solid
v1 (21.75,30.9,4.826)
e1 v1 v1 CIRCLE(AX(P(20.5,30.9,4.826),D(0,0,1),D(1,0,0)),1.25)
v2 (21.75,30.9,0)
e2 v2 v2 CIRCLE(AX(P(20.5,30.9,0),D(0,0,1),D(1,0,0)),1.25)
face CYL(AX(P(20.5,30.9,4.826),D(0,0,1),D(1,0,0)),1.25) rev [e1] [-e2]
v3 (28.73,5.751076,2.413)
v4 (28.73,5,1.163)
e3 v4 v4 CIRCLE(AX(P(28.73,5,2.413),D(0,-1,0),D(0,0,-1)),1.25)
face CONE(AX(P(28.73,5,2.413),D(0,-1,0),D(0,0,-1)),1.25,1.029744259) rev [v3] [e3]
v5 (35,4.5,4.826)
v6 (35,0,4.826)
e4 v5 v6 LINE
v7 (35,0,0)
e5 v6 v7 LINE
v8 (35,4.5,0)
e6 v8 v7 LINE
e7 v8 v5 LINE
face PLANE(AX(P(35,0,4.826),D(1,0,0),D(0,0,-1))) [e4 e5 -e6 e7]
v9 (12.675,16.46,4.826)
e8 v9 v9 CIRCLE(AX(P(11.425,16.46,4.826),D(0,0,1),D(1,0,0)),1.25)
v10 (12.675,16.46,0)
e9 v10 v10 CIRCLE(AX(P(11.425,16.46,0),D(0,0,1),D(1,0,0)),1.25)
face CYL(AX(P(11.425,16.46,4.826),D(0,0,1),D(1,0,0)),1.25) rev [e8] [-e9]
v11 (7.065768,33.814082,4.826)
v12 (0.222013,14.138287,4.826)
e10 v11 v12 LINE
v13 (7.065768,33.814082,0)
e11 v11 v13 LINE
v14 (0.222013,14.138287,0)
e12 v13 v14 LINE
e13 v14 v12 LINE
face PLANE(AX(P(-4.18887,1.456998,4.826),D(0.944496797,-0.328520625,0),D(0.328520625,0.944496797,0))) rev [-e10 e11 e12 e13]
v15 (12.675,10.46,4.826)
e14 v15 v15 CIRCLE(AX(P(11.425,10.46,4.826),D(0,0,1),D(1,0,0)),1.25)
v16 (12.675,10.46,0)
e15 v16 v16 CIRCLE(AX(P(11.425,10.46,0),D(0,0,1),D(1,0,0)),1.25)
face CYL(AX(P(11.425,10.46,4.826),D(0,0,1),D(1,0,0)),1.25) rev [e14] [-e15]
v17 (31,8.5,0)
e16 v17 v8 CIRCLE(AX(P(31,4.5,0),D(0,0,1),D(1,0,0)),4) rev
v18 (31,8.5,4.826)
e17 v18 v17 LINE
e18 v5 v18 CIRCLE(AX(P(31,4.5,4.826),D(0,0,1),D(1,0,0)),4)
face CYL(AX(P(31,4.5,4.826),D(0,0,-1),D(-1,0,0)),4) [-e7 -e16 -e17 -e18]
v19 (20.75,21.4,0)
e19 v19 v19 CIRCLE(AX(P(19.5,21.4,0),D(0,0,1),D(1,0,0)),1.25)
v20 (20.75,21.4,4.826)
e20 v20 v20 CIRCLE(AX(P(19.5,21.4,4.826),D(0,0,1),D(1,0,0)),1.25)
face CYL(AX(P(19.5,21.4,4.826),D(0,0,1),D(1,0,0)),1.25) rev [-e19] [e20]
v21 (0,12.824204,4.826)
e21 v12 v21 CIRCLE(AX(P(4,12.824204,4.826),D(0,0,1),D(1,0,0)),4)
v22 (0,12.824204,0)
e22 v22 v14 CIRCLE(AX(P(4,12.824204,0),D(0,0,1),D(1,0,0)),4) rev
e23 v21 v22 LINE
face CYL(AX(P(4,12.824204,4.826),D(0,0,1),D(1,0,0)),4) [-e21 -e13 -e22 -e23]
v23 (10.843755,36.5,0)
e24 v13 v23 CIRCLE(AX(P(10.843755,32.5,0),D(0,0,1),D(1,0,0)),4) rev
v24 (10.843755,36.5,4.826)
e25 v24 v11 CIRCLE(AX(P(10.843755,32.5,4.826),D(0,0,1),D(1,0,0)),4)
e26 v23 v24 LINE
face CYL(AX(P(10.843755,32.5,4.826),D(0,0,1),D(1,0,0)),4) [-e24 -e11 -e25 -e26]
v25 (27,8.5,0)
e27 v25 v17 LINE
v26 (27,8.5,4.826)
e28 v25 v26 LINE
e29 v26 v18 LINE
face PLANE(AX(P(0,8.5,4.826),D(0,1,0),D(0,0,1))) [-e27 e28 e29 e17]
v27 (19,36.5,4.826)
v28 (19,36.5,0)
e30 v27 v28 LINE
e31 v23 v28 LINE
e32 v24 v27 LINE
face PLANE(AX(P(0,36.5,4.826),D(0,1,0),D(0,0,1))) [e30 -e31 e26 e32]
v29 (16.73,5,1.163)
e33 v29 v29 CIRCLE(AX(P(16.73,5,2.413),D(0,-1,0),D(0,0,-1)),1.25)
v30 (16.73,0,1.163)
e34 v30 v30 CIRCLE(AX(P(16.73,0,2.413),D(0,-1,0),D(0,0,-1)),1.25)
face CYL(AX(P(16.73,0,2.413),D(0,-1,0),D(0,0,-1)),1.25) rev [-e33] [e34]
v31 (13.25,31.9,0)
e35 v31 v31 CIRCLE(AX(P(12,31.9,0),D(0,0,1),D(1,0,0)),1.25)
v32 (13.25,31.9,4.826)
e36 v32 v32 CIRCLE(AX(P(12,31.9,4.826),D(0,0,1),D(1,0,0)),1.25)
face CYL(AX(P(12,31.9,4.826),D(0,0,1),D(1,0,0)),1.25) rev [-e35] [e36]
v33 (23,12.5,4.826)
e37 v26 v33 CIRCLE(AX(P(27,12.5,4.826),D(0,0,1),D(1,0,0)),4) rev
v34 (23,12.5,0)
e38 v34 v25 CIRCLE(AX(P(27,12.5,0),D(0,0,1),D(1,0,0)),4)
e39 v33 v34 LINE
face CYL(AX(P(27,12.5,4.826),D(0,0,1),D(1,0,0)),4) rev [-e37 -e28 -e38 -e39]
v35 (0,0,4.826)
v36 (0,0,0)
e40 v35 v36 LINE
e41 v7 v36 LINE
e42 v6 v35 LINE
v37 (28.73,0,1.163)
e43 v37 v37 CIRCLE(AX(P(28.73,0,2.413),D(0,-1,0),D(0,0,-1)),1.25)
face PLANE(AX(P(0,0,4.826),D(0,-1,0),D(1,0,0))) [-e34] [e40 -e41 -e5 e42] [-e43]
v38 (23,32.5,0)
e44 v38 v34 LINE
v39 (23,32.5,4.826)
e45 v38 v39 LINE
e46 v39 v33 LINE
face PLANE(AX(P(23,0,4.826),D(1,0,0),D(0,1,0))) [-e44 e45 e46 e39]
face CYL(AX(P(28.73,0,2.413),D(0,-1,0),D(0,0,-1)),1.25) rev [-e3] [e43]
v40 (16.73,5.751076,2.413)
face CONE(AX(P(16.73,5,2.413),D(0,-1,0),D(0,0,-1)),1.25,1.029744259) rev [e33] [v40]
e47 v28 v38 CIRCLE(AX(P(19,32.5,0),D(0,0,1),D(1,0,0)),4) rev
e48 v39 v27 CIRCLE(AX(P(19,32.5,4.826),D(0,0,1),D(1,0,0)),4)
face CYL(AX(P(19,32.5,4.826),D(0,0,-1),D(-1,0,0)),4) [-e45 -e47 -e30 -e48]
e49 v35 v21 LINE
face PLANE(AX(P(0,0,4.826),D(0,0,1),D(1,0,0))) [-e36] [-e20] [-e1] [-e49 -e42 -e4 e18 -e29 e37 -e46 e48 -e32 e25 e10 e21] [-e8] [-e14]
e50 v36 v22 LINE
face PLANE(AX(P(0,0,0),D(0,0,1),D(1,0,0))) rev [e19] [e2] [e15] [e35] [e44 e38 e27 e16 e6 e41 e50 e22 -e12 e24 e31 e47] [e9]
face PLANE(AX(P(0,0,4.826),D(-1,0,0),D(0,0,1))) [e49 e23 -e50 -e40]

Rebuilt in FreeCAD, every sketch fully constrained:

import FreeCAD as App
import Part
import Sketcher
Q = App.Units.Quantity


def edges_at(feature, points):
    """Names of the edges that pass closest to the given points."""
    edges = feature.Shape.Edges
    near = lambda p: min(range(len(edges)), key=lambda i: edges[i].distToShape(Part.Vertex(*p))[0])
    return sorted({f"Edge{near(p) + 1}" for p in points})


def add_polygon(sketch, points):
    """Adds a closed chain of lines whose ends are joined by coincident constraints."""
    first, n = sketch.GeometryCount, len(points)
    for a, b in zip(points, points[1:] + points[:1]):
        sketch.addGeometry(Part.LineSegment(App.Vector(*a, 0), App.Vector(*b, 0)), False)
    for i in range(n):
        sketch.addConstraint(Sketcher.Constraint("Coincident", first + i, 2, first + (i + 1) % n, 1))

doc = App.newDocument("Part")
body = doc.addObject("PartDesign::Body", "Body")

# Sketch on XY plane
sketch1 = body.newObject("Sketcher::SketchObject", "Sketch")
sketch1.AttachmentSupport = (doc.getObject("XY_Plane"), [""])
sketch1.MapMode = "FlatFace"
add_polygon(sketch1, [(0, 14), (0, 0), (35, 0), (35, 8), (23, 8), (23, 36), (8, 36)])  # lines 0-6
sketch1.addConstraint([
    Sketcher.Constraint("Vertical", 0),
    Sketcher.Constraint("Horizontal", 1),
    Sketcher.Constraint("Vertical", 2),
    Sketcher.Constraint("Horizontal", 3),
    Sketcher.Constraint("Vertical", 4),
    Sketcher.Constraint("Horizontal", 5),
    Sketcher.Constraint("Coincident", 0, 2, -1, 1),
    Sketcher.Constraint("DistanceX", 1, 1, 1, 2, Q("35 mm")),
    Sketcher.Constraint("DistanceX", 3, 2, 3, 1, Q("12 mm")),
    Sketcher.Constraint("DistanceX", 5, 2, 5, 1, Q("15 mm")),
    Sketcher.Constraint("DistanceY", 4, 1, 4, 2, Q("28 mm")),
    Sketcher.Constraint("DistanceY", 0, 2, 0, 1, Q("13.5 mm")),
    Sketcher.Constraint("DistanceY", 2, 1, 2, 2, Q("8.5 mm")),
])
pad1 = body.newObject("PartDesign::Pad", "Pad")
pad1.Profile = sketch1
pad1.Length = 4.826

# Sketch on XY plane
sketch2 = body.newObject("Sketcher::SketchObject", "Sketch001")
sketch2.AttachmentSupport = (doc.getObject("XY_Plane"), [""])
sketch2.MapMode = "FlatFace"
sketch2.AttachmentOffset = App.Placement(App.Vector(0, 0, 4.826), App.Rotation())
sketch2.addGeometry(Part.Circle(App.Vector(12, 31.9, 0), App.Vector(0, 0, 1), 1.2), False)
sketch2.addConstraint([
    Sketcher.Constraint("Diameter", 0, Q("2.5 mm")),
    Sketcher.Constraint("DistanceX", -1, 1, 0, 3, Q("12 mm")),
    Sketcher.Constraint("DistanceY", -1, 1, 0, 3, Q("31.9 mm")),
])
doc.recompute()
hole = body.newObject("PartDesign::Hole", "Hole")
hole.Profile = sketch2
hole.ThreadType = "None"
hole.Diameter = 2.5
hole.DepthType = "ThroughAll"

# Sketch on XZ plane
sketch3 = body.newObject("Sketcher::SketchObject", "Sketch002")
sketch3.AttachmentSupport = (doc.getObject("XZ_Plane"), [""])
sketch3.MapMode = "FlatFace"
sketch3.addGeometry([
    Part.Circle(App.Vector(16.7, 2.4, 0), App.Vector(0, 0, 1), 1.2),
    Part.Circle(App.Vector(28.7, 2.4, 0), App.Vector(0, 0, 1), 1.2),
], False)
sketch3.addConstraint([
    Sketcher.Constraint("Equal", 0, 1),
    Sketcher.Constraint("Horizontal", 0, 3, 1, 3),
    Sketcher.Constraint("Diameter", 0, Q("2.5 mm")),
    Sketcher.Constraint("DistanceX", 0, 3, 1, 3, Q("12 mm")),
    Sketcher.Constraint("DistanceX", -1, 1, 0, 3, Q("16.73 mm")),
    Sketcher.Constraint("DistanceY", -1, 1, 0, 3, Q("2.413 mm")),
])
doc.recompute()
hole2 = body.newObject("PartDesign::Hole", "Hole001")
hole2.Profile = sketch3
hole2.ThreadType = "None"
hole2.Diameter = 2.5
hole2.DepthType = "Dimension"
hole2.Depth = 5
hole2.DrillPoint = "Angled"
hole2.DrillPointAngle = 118
doc.recompute()

fillet = body.newObject("PartDesign::Fillet", "Fillet")
fillet.Base = (hole2, edges_at(hole2, [
    (23, 36.5, 2.413),
    (23, 8.5, 2.413),
    (35, 8.5, 2.413),
    (0, 13.5, 2.413),
    (8, 36.5, 2.413),
]))
fillet.Radius = 4

# Sketch on XY plane
sketch4 = body.newObject("Sketcher::SketchObject", "Sketch003")
sketch4.AttachmentSupport = (doc.getObject("XY_Plane"), [""])
sketch4.MapMode = "FlatFace"
sketch4.AttachmentOffset = App.Placement(App.Vector(0, 0, 4.826), App.Rotation())
sketch4.addGeometry([
    Part.Circle(App.Vector(19.5, 21.4, 0), App.Vector(0, 0, 1), 1.2),
    Part.Circle(App.Vector(20.5, 30.9, 0), App.Vector(0, 0, 1), 1.2),
], False)
sketch4.addConstraint([
    Sketcher.Constraint("Equal", 0, 1),
    Sketcher.Constraint("Diameter", 0, Q("2.5 mm")),
    Sketcher.Constraint("DistanceX", 0, 3, 1, 3, Q("1 mm")),
    Sketcher.Constraint("DistanceX", -1, 1, 0, 3, Q("19.5 mm")),
    Sketcher.Constraint("DistanceY", -1, 1, 0, 3, Q("21.4 mm")),
    Sketcher.Constraint("DistanceY", -1, 1, 1, 3, Q("30.9 mm")),
])
doc.recompute()
hole3 = body.newObject("PartDesign::Hole", "Hole002")
hole3.Profile = sketch4
hole3.ThreadType = "None"
hole3.Diameter = 2.5
hole3.DepthType = "ThroughAll"

# Sketch on XY plane
sketch5 = body.newObject("Sketcher::SketchObject", "Sketch004")
sketch5.AttachmentSupport = (doc.getObject("XY_Plane"), [""])
sketch5.MapMode = "FlatFace"
sketch5.AttachmentOffset = App.Placement(App.Vector(0, 0, 4.826), App.Rotation())
sketch5.addGeometry([
    Part.Circle(App.Vector(11.4, 16.5, 0), App.Vector(0, 0, 1), 1.2),
    Part.Circle(App.Vector(11.4, 10.5, 0), App.Vector(0, 0, 1), 1.2),
], False)
sketch5.addConstraint([
    Sketcher.Constraint("Equal", 0, 1),
    Sketcher.Constraint("Vertical", 0, 3, 1, 3),
    Sketcher.Constraint("Diameter", 0, Q("2.5 mm")),
    Sketcher.Constraint("DistanceY", 1, 3, 0, 3, Q("6 mm")),
    Sketcher.Constraint("DistanceY", -1, 1, 0, 3, Q("16.46 mm")),
    Sketcher.Constraint("DistanceX", -1, 1, 0, 3, Q("11.425 mm")),
])
doc.recompute()
hole4 = body.newObject("PartDesign::Hole", "Hole003")
hole4.Profile = sketch5
hole4.ThreadType = "None"
hole4.Diameter = 2.5
hole4.DepthType = "ThroughAll"

doc.recompute()
